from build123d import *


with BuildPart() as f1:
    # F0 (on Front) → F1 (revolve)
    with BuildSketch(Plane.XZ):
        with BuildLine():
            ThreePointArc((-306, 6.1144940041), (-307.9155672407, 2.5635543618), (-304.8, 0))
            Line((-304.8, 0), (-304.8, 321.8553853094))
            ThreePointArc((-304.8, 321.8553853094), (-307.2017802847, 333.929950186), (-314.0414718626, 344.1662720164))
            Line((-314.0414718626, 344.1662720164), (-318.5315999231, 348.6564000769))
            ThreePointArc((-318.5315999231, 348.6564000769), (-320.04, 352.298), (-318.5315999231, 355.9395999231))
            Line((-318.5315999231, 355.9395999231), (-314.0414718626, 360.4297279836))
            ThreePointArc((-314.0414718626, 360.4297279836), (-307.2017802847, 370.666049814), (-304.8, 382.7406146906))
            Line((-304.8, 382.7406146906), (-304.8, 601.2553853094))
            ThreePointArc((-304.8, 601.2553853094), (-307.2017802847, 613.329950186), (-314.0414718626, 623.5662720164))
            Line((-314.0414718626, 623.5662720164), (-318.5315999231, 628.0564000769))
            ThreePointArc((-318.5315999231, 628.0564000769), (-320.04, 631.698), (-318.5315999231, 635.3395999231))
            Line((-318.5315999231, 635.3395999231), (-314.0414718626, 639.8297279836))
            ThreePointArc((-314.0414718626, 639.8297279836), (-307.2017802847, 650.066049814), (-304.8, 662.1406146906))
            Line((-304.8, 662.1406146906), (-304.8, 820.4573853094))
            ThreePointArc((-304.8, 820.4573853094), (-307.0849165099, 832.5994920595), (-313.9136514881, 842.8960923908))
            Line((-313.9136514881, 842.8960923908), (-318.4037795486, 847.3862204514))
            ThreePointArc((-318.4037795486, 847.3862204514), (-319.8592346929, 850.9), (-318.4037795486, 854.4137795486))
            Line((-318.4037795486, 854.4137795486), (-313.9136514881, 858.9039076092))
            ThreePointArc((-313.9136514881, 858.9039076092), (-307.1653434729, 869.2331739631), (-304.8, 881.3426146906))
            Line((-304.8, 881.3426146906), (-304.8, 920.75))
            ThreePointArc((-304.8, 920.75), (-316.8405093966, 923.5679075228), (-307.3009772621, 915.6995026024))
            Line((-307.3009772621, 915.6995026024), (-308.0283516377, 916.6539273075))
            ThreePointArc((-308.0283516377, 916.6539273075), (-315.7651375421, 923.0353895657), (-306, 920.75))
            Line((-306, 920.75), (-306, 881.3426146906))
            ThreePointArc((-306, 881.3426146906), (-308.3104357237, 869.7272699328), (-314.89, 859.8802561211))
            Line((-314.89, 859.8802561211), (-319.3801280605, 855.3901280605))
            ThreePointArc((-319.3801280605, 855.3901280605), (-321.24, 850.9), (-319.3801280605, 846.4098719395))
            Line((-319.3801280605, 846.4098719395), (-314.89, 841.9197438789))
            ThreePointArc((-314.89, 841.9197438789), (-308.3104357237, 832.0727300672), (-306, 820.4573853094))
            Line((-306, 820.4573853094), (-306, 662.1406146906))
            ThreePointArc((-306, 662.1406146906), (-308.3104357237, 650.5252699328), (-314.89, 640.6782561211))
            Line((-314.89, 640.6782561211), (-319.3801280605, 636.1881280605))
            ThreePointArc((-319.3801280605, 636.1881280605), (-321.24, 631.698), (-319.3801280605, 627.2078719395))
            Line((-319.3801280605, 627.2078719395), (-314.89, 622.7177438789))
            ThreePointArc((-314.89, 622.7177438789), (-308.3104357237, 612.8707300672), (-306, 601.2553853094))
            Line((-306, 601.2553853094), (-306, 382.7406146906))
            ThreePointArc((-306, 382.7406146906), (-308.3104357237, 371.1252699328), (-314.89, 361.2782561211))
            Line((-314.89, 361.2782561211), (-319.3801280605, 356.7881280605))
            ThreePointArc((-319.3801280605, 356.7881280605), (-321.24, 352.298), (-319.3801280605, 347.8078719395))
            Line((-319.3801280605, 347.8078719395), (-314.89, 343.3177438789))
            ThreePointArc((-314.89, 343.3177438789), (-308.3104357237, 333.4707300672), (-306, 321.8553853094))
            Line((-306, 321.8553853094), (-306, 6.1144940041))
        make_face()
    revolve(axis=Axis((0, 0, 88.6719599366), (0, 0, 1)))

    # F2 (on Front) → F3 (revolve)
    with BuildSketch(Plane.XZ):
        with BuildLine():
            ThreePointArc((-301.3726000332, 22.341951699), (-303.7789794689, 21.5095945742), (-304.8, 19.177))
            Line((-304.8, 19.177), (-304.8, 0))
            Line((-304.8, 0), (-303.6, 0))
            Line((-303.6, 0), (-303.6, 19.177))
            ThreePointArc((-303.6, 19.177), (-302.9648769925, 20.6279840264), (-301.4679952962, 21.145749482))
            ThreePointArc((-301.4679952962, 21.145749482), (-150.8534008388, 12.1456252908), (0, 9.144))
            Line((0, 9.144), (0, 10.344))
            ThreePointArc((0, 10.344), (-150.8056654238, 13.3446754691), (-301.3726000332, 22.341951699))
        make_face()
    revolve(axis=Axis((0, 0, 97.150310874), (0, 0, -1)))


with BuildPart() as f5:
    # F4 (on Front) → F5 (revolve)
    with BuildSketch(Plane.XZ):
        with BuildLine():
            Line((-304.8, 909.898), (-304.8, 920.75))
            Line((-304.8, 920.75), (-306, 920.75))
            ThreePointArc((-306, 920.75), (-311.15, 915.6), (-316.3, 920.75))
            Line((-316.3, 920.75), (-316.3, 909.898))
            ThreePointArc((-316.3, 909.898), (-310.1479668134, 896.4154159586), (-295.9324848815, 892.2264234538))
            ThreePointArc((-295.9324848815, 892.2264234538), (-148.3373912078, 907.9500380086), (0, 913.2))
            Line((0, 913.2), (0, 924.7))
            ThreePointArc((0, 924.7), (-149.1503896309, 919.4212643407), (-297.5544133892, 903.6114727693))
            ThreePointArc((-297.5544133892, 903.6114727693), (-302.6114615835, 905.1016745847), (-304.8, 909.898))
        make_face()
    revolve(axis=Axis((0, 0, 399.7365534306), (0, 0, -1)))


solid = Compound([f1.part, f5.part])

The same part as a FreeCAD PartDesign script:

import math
import FreeCAD as App
import Part
import Sketcher

V = App.Vector

doc = App.newDocument("Part")
body = doc.addObject("PartDesign::Body", "Body")

sketch1 = doc.addObject("Sketcher::SketchObject", "Sketch")
body.addObject(sketch1)
sketch1.AttachmentSupport = (doc.XZ_Plane, [""])
sketch1.MapMode = "FlatFace"
sketch1.addGeometry([
    Part.ArcOfCircle(Part.Circle(V(-304.8, 3.2, 0), V(0, 0, 1), 3.2), math.radians(112), math.radians(270)),
    Part.LineSegment(V(-304.8, 0, 0), V(-304.8, 321.9, 0)),
    Part.ArcOfCircle(Part.Circle(V(-336.4, 321.9, 0), V(0, 0, 1), 31.6), math.radians(0), math.radians(45)),
    Part.LineSegment(V(-314, 344.2, 0), V(-318.5, 348.7, 0)),
    Part.ArcOfCircle(Part.Circle(V(-314.9, 352.3, 0), V(0, 0, 1), 5.2), math.radians(135), math.radians(225)),
    Part.LineSegment(V(-318.5, 355.9, 0), V(-314, 360.4, 0)),
    Part.ArcOfCircle(Part.Circle(V(-336.4, 382.7, 0), V(0, 0, 1), 31.6), math.radians(-45), math.radians(0)),
    Part.LineSegment(V(-304.8, 382.7, 0), V(-304.8, 601.3, 0)),
    Part.ArcOfCircle(Part.Circle(V(-336.4, 601.3, 0), V(0, 0, 1), 31.6), math.radians(0), math.radians(45)),
    Part.LineSegment(V(-314, 623.6, 0), V(-318.5, 628.1, 0)),
    Part.ArcOfCircle(Part.Circle(V(-314.9, 631.7, 0), V(0, 0, 1), 5.2), math.radians(135), math.radians(225)),
    Part.LineSegment(V(-318.5, 635.3, 0), V(-314, 639.8, 0)),
    Part.ArcOfCircle(Part.Circle(V(-336.4, 662.1, 0), V(0, 0, 1), 31.6), math.radians(-45), math.radians(0)),
    Part.LineSegment(V(-304.8, 662.1, 0), V(-304.8, 820.5, 0)),
    Part.ArcOfCircle(Part.Circle(V(-335.9, 820.9, 0), V(0, 0, 1), 31.1), math.radians(-1), math.radians(45)),
    Part.LineSegment(V(-313.9, 842.9, 0), V(-318.4, 847.4, 0)),
    Part.ArcOfCircle(Part.Circle(V(-314.9, 850.9, 0), V(0, 0, 1), 5), math.radians(135), math.radians(225)),
    Part.LineSegment(V(-318.4, 854.4, 0), V(-313.9, 858.9, 0)),
    Part.ArcOfCircle(Part.Circle(V(-337, 881.3, 0), V(0, 0, 1), 32.2), math.radians(-44), math.radians(0)),
    Part.LineSegment(V(-304.8, 881.3, 0), V(-304.8, 920.8, 0)),
    Part.ArcOfCircle(Part.Circle(V(-311.1, 920.8, 0), V(0, 0, 1), 6.3), math.radians(0), math.radians(307)),
    Part.LineSegment(V(-307.3, 915.7, 0), V(-308, 916.7, 0)),
    Part.ArcOfCircle(Part.Circle(V(-311.1, 920.8, 0), V(0, 0, 1), 5.2), math.radians(0), math.radians(307)),
    Part.LineSegment(V(-306, 920.8, 0), V(-306, 881.3, 0)),
    Part.ArcOfCircle(Part.Circle(V(-336.4, 881.3, 0), V(0, 0, 1), 30.4), math.radians(-45), math.radians(0)),
    Part.LineSegment(V(-314.9, 859.9, 0), V(-319.4, 855.4, 0)),
    Part.ArcOfCircle(Part.Circle(V(-314.9, 850.9, 0), V(0, 0, 1), 6.3), math.radians(135), math.radians(225)),
    Part.LineSegment(V(-319.4, 846.4, 0), V(-314.9, 841.9, 0)),
    Part.ArcOfCircle(Part.Circle(V(-336.4, 820.5, 0), V(0, 0, 1), 30.4), math.radians(0), math.radians(45)),
    Part.LineSegment(V(-306, 820.5, 0), V(-306, 662.1, 0)),
    Part.ArcOfCircle(Part.Circle(V(-336.4, 662.1, 0), V(0, 0, 1), 30.4), math.radians(-45), math.radians(0)),
    Part.LineSegment(V(-314.9, 640.7, 0), V(-319.4, 636.2, 0)),
    Part.ArcOfCircle(Part.Circle(V(-314.9, 631.7, 0), V(0, 0, 1), 6.3), math.radians(135), math.radians(225)),
    Part.LineSegment(V(-319.4, 627.2, 0), V(-314.9, 622.7, 0)),
    Part.ArcOfCircle(Part.Circle(V(-336.4, 601.3, 0), V(0, 0, 1), 30.4), math.radians(0), math.radians(45)),
    Part.LineSegment(V(-306, 601.3, 0), V(-306, 382.7, 0)),
    Part.ArcOfCircle(Part.Circle(V(-336.4, 382.7, 0), V(0, 0, 1), 30.4), math.radians(-45), math.radians(0)),
    Part.LineSegment(V(-314.9, 361.3, 0), V(-319.4, 356.8, 0)),
    Part.ArcOfCircle(Part.Circle(V(-314.9, 352.3, 0), V(0, 0, 1), 6.3), math.radians(135), math.radians(225)),
    Part.LineSegment(V(-319.4, 347.8, 0), V(-314.9, 343.3, 0)),
    Part.ArcOfCircle(Part.Circle(V(-336.4, 321.9, 0), V(0, 0, 1), 30.4), math.radians(0), math.radians(45)),
    Part.LineSegment(V(-306, 321.9, 0), V(-306, 6.1, 0)),
], False)
sketch1.addConstraint([
    Sketcher.Constraint("Coincident", 0, 2, 1, 1),
    Sketcher.Constraint("Tangent", 1, 2, 2, 1),
    Sketcher.Constraint("Tangent", 2, 2, 3, 1),
    Sketcher.Constraint("Tangent", 3, 2, 4, 2),
    Sketcher.Constraint("Tangent", 4, 1, 5, 1),
    Sketcher.Constraint("Tangent", 5, 2, 6, 1),
    Sketcher.Constraint("Tangent", 6, 2, 7, 1),
    Sketcher.Constraint("Tangent", 7, 2, 8, 1),
    Sketcher.Constraint("Tangent", 8, 2, 9, 1),
    Sketcher.Constraint("Tangent", 9, 2, 10, 2),
    Sketcher.Constraint("Tangent", 10, 1, 11, 1),
    Sketcher.Constraint("Tangent", 11, 2, 12, 1),
    Sketcher.Constraint("Tangent", 12, 2, 13, 1),
    Sketcher.Constraint("Coincident", 13, 2, 14, 1),
    Sketcher.Constraint("Tangent", 14, 2, 15, 1),
    Sketcher.Constraint("Tangent", 15, 2, 16, 2),
    Sketcher.Constraint("Tangent", 16, 1, 17, 1),
    Sketcher.Constraint("Coincident", 17, 2, 18, 1),
    Sketcher.Constraint("Tangent", 18, 2, 19, 1),
    Sketcher.Constraint("Tangent", 19, 2, 20, 1),
    Sketcher.Constraint("Coincident", 20, 2, 21, 1),
    Sketcher.Constraint("Coincident", 21, 2, 22, 2),
    Sketcher.Constraint("Tangent", 22, 1, 23, 1),
    Sketcher.Constraint("Tangent", 23, 2, 24, 2),
    Sketcher.Constraint("Tangent", 24, 1, 25, 1),
    Sketcher.Constraint("Tangent", 25, 2, 26, 1),
    Sketcher.Constraint("Tangent", 26, 2, 27, 1),
    Sketcher.Constraint("Tangent", 27, 2, 28, 2),
    Sketcher.Constraint("Tangent", 28, 1, 29, 1),
    Sketcher.Constraint("Tangent", 29, 2, 30, 2),
    Sketcher.Constraint("Tangent", 30, 1, 31, 1),
    Sketcher.Constraint("Tangent", 31, 2, 32, 1),
    Sketcher.Constraint("Tangent", 32, 2, 33, 1),
    Sketcher.Constraint("Tangent", 33, 2, 34, 2),
    Sketcher.Constraint("Tangent", 34, 1, 35, 1),
    Sketcher.Constraint("Tangent", 35, 2, 36, 2),
    Sketcher.Constraint("Tangent", 36, 1, 37, 1),
    Sketcher.Constraint("Tangent", 37, 2, 38, 1),
    Sketcher.Constraint("Tangent", 38, 2, 39, 1),
    Sketcher.Constraint("Tangent", 39, 2, 40, 2),
    Sketcher.Constraint("Tangent", 40, 1, 41, 1),
    Sketcher.Constraint("Coincident", 41, 2, 0, 1),
    Sketcher.Constraint("Vertical", 1),
    Sketcher.Constraint("Vertical", 7),
    Sketcher.Constraint("Vertical", 13),
    Sketcher.Constraint("Vertical", 19),
    Sketcher.Constraint("Vertical", 23),
    Sketcher.Constraint("Vertical", 29),
    Sketcher.Constraint("Vertical", 35),
    Sketcher.Constraint("Vertical", 41),
    Sketcher.Constraint("Coincident", 22, 3, 20, 3),
    Sketcher.Constraint("Coincident", 26, 3, 16, 3),
    Sketcher.Constraint("Coincident", 30, 3, 12, 3),
    Sketcher.Constraint("Coincident", 32, 3, 10, 3),
    Sketcher.Constraint("Coincident", 34, 3, 8, 3),
    Sketcher.Constraint("Coincident", 36, 3, 6, 3),
    Sketcher.Constraint("Coincident", 38, 3, 4, 3),
    Sketcher.Constraint("Coincident", 40, 3, 2, 3),
    Sketcher.Constraint("Equal", 2, 6),
    Sketcher.Constraint("Equal", 6, 8),
    Sketcher.Constraint("Equal", 4, 10),
    Sketcher.Constraint("Equal", 8, 12),
    Sketcher.Constraint("Equal", 10, 22),
    Sketcher.Constraint("Equal", 20, 26),
    Sketcher.Constraint("Equal", 24, 28),
    Sketcher.Constraint("Equal", 28, 30),
    Sketcher.Constraint("Equal", 26, 32),
    Sketcher.Constraint("Equal", 30, 34),
    Sketcher.Constraint("Equal", 32, 38),
    Sketcher.Constraint("Equal", 36, 40),
    Sketcher.Constraint("PointOnObject", 0, 2, -1),
    Sketcher.Constraint("Perpendicular", 3, 5),
    Sketcher.Constraint("Perpendicular", 5, 9),
    Sketcher.Constraint("Perpendicular", 9, 11),
    Sketcher.Constraint("Perpendicular", 11, 15),
    Sketcher.Constraint("Perpendicular", 15, 17),
    Sketcher.Constraint("Parallel", 17, 25),
    Sketcher.Constraint("Perpendicular", 25, 27),
    Sketcher.Constraint("Perpendicular", 27, 31),
    Sketcher.Constraint("Horizontal", 18, 3, 24, 3),
    Sketcher.Constraint("Horizontal", 28, 3, 13, 2),
    Sketcher.Constraint("Vertical", 2, 3, 6, 3),
    Sketcher.Constraint("Vertical", 4, 3, 10, 3),
    Sketcher.Constraint("Vertical", 8, 3, 12, 3),
    Sketcher.Constraint("Vertical", 10, 3, 16, 3),
    Sketcher.Constraint("Vertical", 12, 3, 24, 3),
    Sketcher.Constraint("Vertical", 3, 2, 4, 1),
    Sketcher.Constraint("Vertical", 14, 2, 17, 2),
    Sketcher.Constraint("Vertical", 38, 3, 24, 1),
    Sketcher.Constraint("Equal", 11, 15),
    Sketcher.Constraint("Radius", 4, 5.15),
    Sketcher.Constraint("Radius", 20, 6.35),
    Sketcher.Constraint("DistanceX", 22, 1, -1, 1, 306.0),
    Sketcher.Constraint("Radius", 0, 3.175),
    Sketcher.Constraint("DistanceX", 0, 3, -1, 1, 304.8),
    Sketcher.Constraint("DistanceY", -1, 1, 16, 3, 850.9),
    Sketcher.Constraint("DistanceX", 4, 3, -1, 1, 314.89),
    Sketcher.Constraint("DistanceY", -1, 1, 20, 3, 920.75),
    Sketcher.Constraint("Radius", 14, 31.126059),
    Sketcher.Constraint("DistanceY", -1, 1, 4, 3, 352.298),
    Sketcher.Constraint("DistanceY", -1, 1, 10, 3, 631.698),
    Sketcher.Constraint("DistanceX", 21, 2, -1, 1, 308.028352),
    Sketcher.Constraint("DistanceX", 20, 2, -1, 1, 307.300977),
])
revolution = doc.addObject("PartDesign::Revolution", "Revolution")
body.addObject(revolution)
revolution.Profile = sketch1
revolution.ReferenceAxis = (sketch1, ["V_Axis"])
revolution.Angle = 360

sketch2 = doc.addObject("Sketcher::SketchObject", "Sketch001")
body.addObject(sketch2)
sketch2.AttachmentSupport = (doc.XZ_Plane, [""])
sketch2.MapMode = "FlatFace"
sketch2.addGeometry([
    Part.ArcOfCircle(Part.Circle(V(-301.6, 19.2, 0), V(0, 0, 1), 3.2), math.radians(85), math.radians(180)),
    Part.LineSegment(V(-304.8, 19.2, 0), V(-304.8, 0, 0)),
    Part.LineSegment(V(-304.8, 0, 0), V(-303.6, 0, 0)),
    Part.LineSegment(V(-303.6, 0, 0), V(-303.6, 19.2, 0)),
    Part.ArcOfCircle(Part.Circle(V(-301.6, 19.2, 0), V(0, 0, 1), 2), math.radians(85), math.radians(180)),
    Part.ArcOfCircle(Part.Circle(V(0, 3801.4, 0), V(0, 0, 1), 3792.2), math.radians(-94.56), math.radians(-90)),
    Part.LineSegment(V(0, 9.1, 0), V(0, 10.3, 0)),
    Part.ArcOfCircle(Part.Circle(V(0, 3801.4, 0), V(0, 0, 1), 3791), math.radians(-94.56), math.radians(-90)),
], False)
sketch2.addConstraint([
    Sketcher.Constraint("Tangent", 0, 2, 1, 1),
    Sketcher.Constraint("Coincident", 1, 2, 2, 1),
    Sketcher.Constraint("Coincident", 2, 2, 3, 1),
    Sketcher.Constraint("Tangent", 3, 2, 4, 2),
    Sketcher.Constraint("Tangent", 4, 1, 5, 1),
    Sketcher.Constraint("Coincident", 5, 2, 6, 1),
    Sketcher.Constraint("Coincident", 6, 2, 7, 2),
    Sketcher.Constraint("Tangent", 7, 1, 0, 1),
    Sketcher.Constraint("Vertical", 1),
    Sketcher.Constraint("Horizontal", 2),
    Sketcher.Constraint("Vertical", 3),
    Sketcher.Constraint("Vertical", 6),
    Sketcher.Constraint("Coincident", 4, 3, 0, 3),
    Sketcher.Constraint("Coincident", 7, 3, 5, 3),
    Sketcher.Constraint("PointOnObject", 5, 3, -2),
    Sketcher.Constraint("PointOnObject", 1, 2, -1),
    Sketcher.Constraint("PointOnObject", 6, 2, -2),
    Sketcher.Constraint("DistanceX", 2, 1, 2, 2, 1.2),
    Sketcher.Constraint("Radius", 0, 3.175),
    Sketcher.Constraint("DistanceX", 0, 2, -1, 1, 304.8),
    Sketcher.Constraint("DistanceY", 1, 2, 1, 1, 19.177),
    Sketcher.Constraint("Radius", 5, 3792.238553),
])
revolution2 = doc.addObject("PartDesign::Revolution", "Revolution001")
body.addObject(revolution2)
revolution2.Profile = sketch2
revolution2.ReferenceAxis = (sketch2, ["V_Axis"])
revolution2.Angle = 360
body2 = doc.addObject("PartDesign::Body", "Body001")

sketch3 = doc.addObject("Sketcher::SketchObject", "Sketch002")
body2.addObject(sketch3)
sketch3.AttachmentSupport = (doc.getObject("XZ_Plane001"), [""])
sketch3.MapMode = "FlatFace"
sketch3.addGeometry([
    Part.LineSegment(V(-304.8, 909.9, 0), V(-304.8, 920.8, 0)),
    Part.LineSegment(V(-304.8, 920.8, 0), V(-306, 920.8, 0)),
    Part.ArcOfCircle(Part.Circle(V(-311.1, 920.8, 0), V(0, 0, 1), 5.2), math.radians(180), math.radians(360)),
    Part.LineSegment(V(-316.3, 920.8, 0), V(-316.3, 909.9, 0)),
    Part.ArcOfCircle(Part.Circle(V(-298.4, 909.9, 0), V(0, 0, 1), 17.9), math.radians(180), math.radians(278)),
    Part.ArcOfCircle(Part.Circle(V(0, -1185.1, 0), V(0, 0, 1), 2098.3), math.radians(90), math.radians(98.11)),
    Part.LineSegment(V(0, 913.2, 0), V(0, 924.7, 0)),
    Part.ArcOfCircle(Part.Circle(V(0, -1185.1, 0), V(0, 0, 1), 2109.8), math.radians(90), math.radians(98.11)),
    Part.ArcOfCircle(Part.Circle(V(-298.4, 909.9, 0), V(0, 0, 1), 6.3), math.radians(180), math.radians(278)),
], False)
sketch3.addConstraint([
    Sketcher.Constraint("Coincident", 0, 2, 1, 1),
    Sketcher.Constraint("Coincident", 1, 2, 2, 2),
    Sketcher.Constraint("Tangent", 2, 1, 3, 1),
    Sketcher.Constraint("Tangent", 3, 2, 4, 1),
    Sketcher.Constraint("Tangent", 4, 2, 5, 2),
    Sketcher.Constraint("Coincident", 5, 1, 6, 1),
    Sketcher.Constraint("Coincident", 6, 2, 7, 1),
    Sketcher.Constraint("Tangent", 7, 2, 8, 2),
    Sketcher.Constraint("Tangent", 8, 1, 0, 1),
    Sketcher.Constraint("Vertical", 0),
    Sketcher.Constraint("Horizontal", 1),
    Sketcher.Constraint("Vertical", 3),
    Sketcher.Constraint("Vertical", 6),
    Sketcher.Constraint("Coincident", 7, 3, 5, 3),
    Sketcher.Constraint("Coincident", 8, 3, 4, 3),
    Sketcher.Constraint("PointOnObject", 5, 3, -2),
    Sketcher.Constraint("PointOnObject", 6, 2, -2),
    Sketcher.Constraint("Horizontal", 2, 3, 0, 2),
    Sketcher.Constraint("Radius", 2, 5.15),
    Sketcher.Constraint("Radius", 4, 17.85),
    Sketcher.Constraint("Radius", 8, 6.35),
    Sketcher.Constraint("DistanceX", 1, 2, -1, 1, 306.0),
    Sketcher.Constraint("DistanceY", -1, 1, 5, 1, 913.2),
    Sketcher.Constraint("DistanceY", 0, 1, 0, 2, 10.852),
    Sketcher.Constraint("DistanceY", -1, 1, 2, 3, 920.75),
])
revolution3 = doc.addObject("PartDesign::Revolution", "Revolution002")
body2.addObject(revolution3)
revolution3.Profile = sketch3
revolution3.ReferenceAxis = (sketch3, ["V_Axis"])
revolution3.Angle = 360

doc.recompute()
